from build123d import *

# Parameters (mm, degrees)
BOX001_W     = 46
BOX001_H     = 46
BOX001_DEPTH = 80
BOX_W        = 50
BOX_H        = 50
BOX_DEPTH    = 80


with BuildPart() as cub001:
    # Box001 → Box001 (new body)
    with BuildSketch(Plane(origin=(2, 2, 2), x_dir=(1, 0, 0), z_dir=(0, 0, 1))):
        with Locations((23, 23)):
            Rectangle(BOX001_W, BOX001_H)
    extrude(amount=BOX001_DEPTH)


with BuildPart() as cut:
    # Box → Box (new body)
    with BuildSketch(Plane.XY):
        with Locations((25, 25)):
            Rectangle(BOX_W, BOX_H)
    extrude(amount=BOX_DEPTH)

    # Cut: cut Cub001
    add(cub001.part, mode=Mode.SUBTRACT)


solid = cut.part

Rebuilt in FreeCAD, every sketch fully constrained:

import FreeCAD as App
import Part
import Sketcher

V = App.Vector
Q = App.Units.Quantity


def add_polygon(sketch, points):
    """Adds a closed chain of lines whose ends are joined by coincident constraints."""
    first, n = sketch.GeometryCount, len(points)
    for a, b in zip(points, points[1:] + points[:1]):
        sketch.addGeometry(Part.LineSegment(App.Vector(*a, 0), App.Vector(*b, 0)), False)
    for i in range(n):
        sketch.addConstraint(Sketcher.Constraint("Coincident", first + i, 2, first + (i + 1) % n, 1))

doc = App.newDocument("Part")
body = doc.addObject("PartDesign::Body", "Body")

# Sketch on XY plane
sketch1 = body.newObject("Sketcher::SketchObject", "Sketch")
sketch1.AttachmentSupport = (doc.getObject("XY_Plane"), [""])
sketch1.MapMode = "FlatFace"
sketch1.AttachmentOffset = App.Placement(V(0, 0, 2), App.Rotation())
add_polygon(sketch1, [(2, 48), (2, 2), (48, 2), (48, 48)])  # lines 0-3
sketch1.addConstraint([
    Sketcher.Constraint("Vertical", 0),
    Sketcher.Constraint("Horizontal", 1),
    Sketcher.Constraint("Vertical", 2),
    Sketcher.Constraint("Horizontal", 3),
    Sketcher.Constraint("Equal", 3, 0),
    Sketcher.Constraint("DistanceX", 1, 1, 1, 2, Q("46 mm")),
    Sketcher.Constraint("DistanceX", -1, 1, 0, 2, Q("2 mm")),
    Sketcher.Constraint("DistanceY", -1, 1, 0, 2, Q("2 mm")),
])
pad1 = body.newObject("PartDesign::Pad", "Pad")
pad1.Profile = sketch1
pad1.Length = 80
body2 = doc.addObject("PartDesign::Body", "Body001")

# Sketch on XY plane
sketch2 = body2.newObject("Sketcher::SketchObject", "Sketch001")
sketch2.AttachmentSupport = (doc.getObject("XY_Plane001"), [""])
sketch2.MapMode = "FlatFace"
add_polygon(sketch2, [(0, 50), (0, 0), (50, 0), (50, 50)])  # lines 0-3
sketch2.addConstraint([
    Sketcher.Constraint("Vertical", 0),
    Sketcher.Constraint("Horizontal", 1),
    Sketcher.Constraint("Vertical", 2),
    Sketcher.Constraint("Horizontal", 3),
    Sketcher.Constraint("Coincident", 0, 2, -1, 1),
    Sketcher.Constraint("Equal", 3, 0),
    Sketcher.Constraint("DistanceX", 1, 1, 1, 2, Q("50 mm")),
])
pad2 = body2.newObject("PartDesign::Pad", "Pad001")
pad2.Profile = sketch2
pad2.Length = 80
doc.recompute()

boolean = body2.newObject("PartDesign::Boolean", "Boolean")
boolean.Type = "Cut"
boolean.addObjects([body])

doc.recompute()
